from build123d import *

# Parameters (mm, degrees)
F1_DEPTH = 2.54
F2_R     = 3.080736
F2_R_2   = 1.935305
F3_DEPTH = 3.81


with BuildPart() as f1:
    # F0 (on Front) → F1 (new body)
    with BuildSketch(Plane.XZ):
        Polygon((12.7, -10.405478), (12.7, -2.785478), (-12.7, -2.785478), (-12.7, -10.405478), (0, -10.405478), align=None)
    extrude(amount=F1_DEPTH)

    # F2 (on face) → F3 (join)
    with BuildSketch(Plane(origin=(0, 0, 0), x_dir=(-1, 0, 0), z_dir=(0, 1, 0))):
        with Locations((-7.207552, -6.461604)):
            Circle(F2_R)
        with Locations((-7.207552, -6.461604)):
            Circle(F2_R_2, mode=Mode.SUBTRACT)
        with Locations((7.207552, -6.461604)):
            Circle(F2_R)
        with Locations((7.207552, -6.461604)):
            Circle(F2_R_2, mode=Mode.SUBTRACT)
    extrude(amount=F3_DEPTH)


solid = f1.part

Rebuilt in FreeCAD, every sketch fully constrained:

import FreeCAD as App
import Part
import Sketcher

V = App.Vector
Q = App.Units.Quantity


def add_polygon(sketch, points):
    """Adds a closed chain of lines whose ends are joined by coincident constraints."""
    first, n = sketch.GeometryCount, len(points)
    for a, b in zip(points, points[1:] + points[:1]):
        sketch.addGeometry(Part.LineSegment(App.Vector(*a, 0), App.Vector(*b, 0)), False)
    for i in range(n):
        sketch.addConstraint(Sketcher.Constraint("Coincident", first + i, 2, first + (i + 1) % n, 1))

doc = App.newDocument("Part")
body = doc.addObject("PartDesign::Body", "Body")

# Sketch on XZ plane
sketch1 = body.newObject("Sketcher::SketchObject", "Sketch")
sketch1.AttachmentSupport = (doc.getObject("XZ_Plane"), [""])
sketch1.MapMode = "FlatFace"
add_polygon(sketch1, [(12.7, -10.405478), (12.7, -2.785478), (-12.7, -2.785478), (-12.7, -10.405478)])  # lines 0-3
sketch1.addConstraint([
    Sketcher.Constraint("Vertical", 0),
    Sketcher.Constraint("Horizontal", 1),
    Sketcher.Constraint("Vertical", 2),
    Sketcher.Constraint("Horizontal", 3),
    Sketcher.Constraint("DistanceX", 1, 2, 1, 1, Q("1 in")),
    Sketcher.Constraint("DistanceY", 0, 1, 0, 2, Q("0.3 in")),
    Sketcher.Constraint("DistanceX", -1, 1, 0, 2, Q("0.5 in")),
    Sketcher.Constraint("DistanceY", 0, 2, -1, 1, Q("2.785478 mm")),
])
pad1 = body.newObject("PartDesign::Pad", "Pad")
pad1.Profile = sketch1
pad1.Length = Q("0.1 in")

# Sketch on XZ plane
sketch2 = body.newObject("Sketcher::SketchObject", "Sketch001")
sketch2.AttachmentSupport = (doc.getObject("XZ_Plane"), [""])
sketch2.MapMode = "FlatFace"
sketch2.addGeometry([
    Part.Circle(V(7.207552, -6.461604, 0), V(0, 0, 1), 3.080736),
    Part.Circle(V(7.207552, -6.461604, 0), V(0, 0, 1), 1.935305),
    Part.Circle(V(-7.207552, -6.461604, 0), V(0, 0, 1), 3.080736),
    Part.Circle(V(-7.207552, -6.461604, 0), V(0, 0, 1), 1.935305),
], False)
sketch2.addConstraint([
    Sketcher.Constraint("Coincident", 1, 3, 0, 3),
    Sketcher.Constraint("Coincident", 3, 3, 2, 3),
    Sketcher.Constraint("Equal", 0, 2),
    Sketcher.Constraint("Equal", 1, 3),
    Sketcher.Constraint("Symmetric", 0, 3, 2, 3, -2),
    Sketcher.Constraint("Diameter", 1, Q("3.87061 mm")),
    Sketcher.Constraint("Diameter", 0, Q("6.161472 mm")),
    Sketcher.Constraint("DistanceX", -1, 1, 0, 3, Q("7.207552 mm")),
    Sketcher.Constraint("DistanceY", 0, 3, -1, 1, Q("6.461604 mm")),
])
pad2 = body.newObject("PartDesign::Pad", "Pad001")
pad2.Profile = sketch2
pad2.Length = Q("0.15 in")
pad2.Reversed = True

doc.recompute()
